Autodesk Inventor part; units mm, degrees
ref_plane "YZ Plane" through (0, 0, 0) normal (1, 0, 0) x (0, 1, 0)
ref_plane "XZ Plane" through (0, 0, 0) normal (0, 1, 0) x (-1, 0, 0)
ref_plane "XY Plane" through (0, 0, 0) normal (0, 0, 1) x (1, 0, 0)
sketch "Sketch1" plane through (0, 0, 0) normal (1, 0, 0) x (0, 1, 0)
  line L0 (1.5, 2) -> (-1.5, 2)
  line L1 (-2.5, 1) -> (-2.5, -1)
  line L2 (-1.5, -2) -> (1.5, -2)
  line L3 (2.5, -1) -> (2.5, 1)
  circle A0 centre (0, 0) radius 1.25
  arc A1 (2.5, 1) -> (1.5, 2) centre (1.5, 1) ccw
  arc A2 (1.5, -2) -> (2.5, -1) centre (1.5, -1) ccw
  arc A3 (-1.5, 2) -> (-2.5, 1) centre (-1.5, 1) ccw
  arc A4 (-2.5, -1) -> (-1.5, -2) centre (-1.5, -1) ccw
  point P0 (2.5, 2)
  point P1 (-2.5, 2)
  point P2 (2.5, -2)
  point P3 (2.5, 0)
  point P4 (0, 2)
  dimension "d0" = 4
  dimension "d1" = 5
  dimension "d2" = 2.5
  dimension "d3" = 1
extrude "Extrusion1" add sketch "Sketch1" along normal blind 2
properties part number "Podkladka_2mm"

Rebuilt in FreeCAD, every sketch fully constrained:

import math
import FreeCAD as App
import Part
import Sketcher

doc = App.newDocument("Part")
params = doc.addObject("Spreadsheet::Sheet", "Params")
for row, (alias, value) in enumerate([
    ("sketch1_radius", "1 mm"),
    ("sketch1_diameter", "2.5 mm"),
    ("pad1_length", "2 mm"),
], start=1):
    params.set(f"A{row}", alias)
    params.set(f"B{row}", "=" + value)
    params.setAlias(f"B{row}", alias)

body = doc.addObject("PartDesign::Body", "Body")

sketch1 = body.newObject("Sketcher::SketchObject", "Sketch")
sketch1.AttachmentSupport = (doc.getObject("YZ_Plane"), [""])
sketch1.MapMode = "FlatFace"
sketch1.addGeometry([
    Part.ArcOfCircle(Part.Circle(App.Vector(1.5, 1, 0), App.Vector(0, 0, 1), 1), math.radians(0), math.radians(90)),
    Part.LineSegment(App.Vector(1.5, 2, 0), App.Vector(-1.5, 2, 0)),
    Part.ArcOfCircle(Part.Circle(App.Vector(-1.5, 1, 0), App.Vector(0, 0, 1), 1), math.radians(90), math.radians(180)),
    Part.LineSegment(App.Vector(-2.5, 1, 0), App.Vector(-2.5, -1, 0)),
    Part.ArcOfCircle(Part.Circle(App.Vector(-1.5, -1, 0), App.Vector(0, 0, 1), 1), math.radians(180), math.radians(270)),
    Part.LineSegment(App.Vector(-1.5, -2, 0), App.Vector(1.5, -2, 0)),
    Part.ArcOfCircle(Part.Circle(App.Vector(1.5, -1, 0), App.Vector(0, 0, 1), 1), math.radians(-90), math.radians(0)),
    Part.LineSegment(App.Vector(2.5, -1, 0), App.Vector(2.5, 1, 0)),
    Part.Circle(App.Vector(0, 0, 0), App.Vector(0, 0, 1), 1.2),
], False)
sketch1.addConstraint([
    Sketcher.Constraint("Tangent", 0, 2, 1, 1),
    Sketcher.Constraint("Tangent", 1, 2, 2, 1),
    Sketcher.Constraint("Tangent", 2, 2, 3, 1),
    Sketcher.Constraint("Tangent", 3, 2, 4, 1),
    Sketcher.Constraint("Tangent", 4, 2, 5, 1),
    Sketcher.Constraint("Tangent", 5, 2, 6, 1),
    Sketcher.Constraint("Tangent", 6, 2, 7, 1),
    Sketcher.Constraint("Tangent", 7, 2, 0, 1),
    Sketcher.Constraint("Horizontal", 1),
    Sketcher.Constraint("Vertical", 3),
    Sketcher.Constraint("Horizontal", 5),
    Sketcher.Constraint("Vertical", 7),
    Sketcher.Constraint("Coincident", 8, 3, -1, 1),
    Sketcher.Constraint("Equal", 0, 2),
    Sketcher.Constraint("Equal", 2, 4),
    Sketcher.Constraint("Equal", 4, 6),
    Sketcher.Constraint("Symmetric", 0, 3, 4, 3, -1, 1),
    Sketcher.Constraint("Radius", 0, 1.0),
    Sketcher.Constraint("Diameter", 8, 2.5),
    Sketcher.Constraint("DistanceY", -1, 1, 0, 3, 1.0),
    Sketcher.Constraint("DistanceX", 2, 2, 0, 3, 4.0),
])
sketch1.setExpression("Constraints[17]", "Params.sketch1_radius")
sketch1.setExpression("Constraints[18]", "Params.sketch1_diameter")
pad1 = body.newObject("PartDesign::Pad", "Pad")
pad1.Profile = sketch1
pad1.setExpression("Length", "Params.pad1_length")

doc.recompute()
